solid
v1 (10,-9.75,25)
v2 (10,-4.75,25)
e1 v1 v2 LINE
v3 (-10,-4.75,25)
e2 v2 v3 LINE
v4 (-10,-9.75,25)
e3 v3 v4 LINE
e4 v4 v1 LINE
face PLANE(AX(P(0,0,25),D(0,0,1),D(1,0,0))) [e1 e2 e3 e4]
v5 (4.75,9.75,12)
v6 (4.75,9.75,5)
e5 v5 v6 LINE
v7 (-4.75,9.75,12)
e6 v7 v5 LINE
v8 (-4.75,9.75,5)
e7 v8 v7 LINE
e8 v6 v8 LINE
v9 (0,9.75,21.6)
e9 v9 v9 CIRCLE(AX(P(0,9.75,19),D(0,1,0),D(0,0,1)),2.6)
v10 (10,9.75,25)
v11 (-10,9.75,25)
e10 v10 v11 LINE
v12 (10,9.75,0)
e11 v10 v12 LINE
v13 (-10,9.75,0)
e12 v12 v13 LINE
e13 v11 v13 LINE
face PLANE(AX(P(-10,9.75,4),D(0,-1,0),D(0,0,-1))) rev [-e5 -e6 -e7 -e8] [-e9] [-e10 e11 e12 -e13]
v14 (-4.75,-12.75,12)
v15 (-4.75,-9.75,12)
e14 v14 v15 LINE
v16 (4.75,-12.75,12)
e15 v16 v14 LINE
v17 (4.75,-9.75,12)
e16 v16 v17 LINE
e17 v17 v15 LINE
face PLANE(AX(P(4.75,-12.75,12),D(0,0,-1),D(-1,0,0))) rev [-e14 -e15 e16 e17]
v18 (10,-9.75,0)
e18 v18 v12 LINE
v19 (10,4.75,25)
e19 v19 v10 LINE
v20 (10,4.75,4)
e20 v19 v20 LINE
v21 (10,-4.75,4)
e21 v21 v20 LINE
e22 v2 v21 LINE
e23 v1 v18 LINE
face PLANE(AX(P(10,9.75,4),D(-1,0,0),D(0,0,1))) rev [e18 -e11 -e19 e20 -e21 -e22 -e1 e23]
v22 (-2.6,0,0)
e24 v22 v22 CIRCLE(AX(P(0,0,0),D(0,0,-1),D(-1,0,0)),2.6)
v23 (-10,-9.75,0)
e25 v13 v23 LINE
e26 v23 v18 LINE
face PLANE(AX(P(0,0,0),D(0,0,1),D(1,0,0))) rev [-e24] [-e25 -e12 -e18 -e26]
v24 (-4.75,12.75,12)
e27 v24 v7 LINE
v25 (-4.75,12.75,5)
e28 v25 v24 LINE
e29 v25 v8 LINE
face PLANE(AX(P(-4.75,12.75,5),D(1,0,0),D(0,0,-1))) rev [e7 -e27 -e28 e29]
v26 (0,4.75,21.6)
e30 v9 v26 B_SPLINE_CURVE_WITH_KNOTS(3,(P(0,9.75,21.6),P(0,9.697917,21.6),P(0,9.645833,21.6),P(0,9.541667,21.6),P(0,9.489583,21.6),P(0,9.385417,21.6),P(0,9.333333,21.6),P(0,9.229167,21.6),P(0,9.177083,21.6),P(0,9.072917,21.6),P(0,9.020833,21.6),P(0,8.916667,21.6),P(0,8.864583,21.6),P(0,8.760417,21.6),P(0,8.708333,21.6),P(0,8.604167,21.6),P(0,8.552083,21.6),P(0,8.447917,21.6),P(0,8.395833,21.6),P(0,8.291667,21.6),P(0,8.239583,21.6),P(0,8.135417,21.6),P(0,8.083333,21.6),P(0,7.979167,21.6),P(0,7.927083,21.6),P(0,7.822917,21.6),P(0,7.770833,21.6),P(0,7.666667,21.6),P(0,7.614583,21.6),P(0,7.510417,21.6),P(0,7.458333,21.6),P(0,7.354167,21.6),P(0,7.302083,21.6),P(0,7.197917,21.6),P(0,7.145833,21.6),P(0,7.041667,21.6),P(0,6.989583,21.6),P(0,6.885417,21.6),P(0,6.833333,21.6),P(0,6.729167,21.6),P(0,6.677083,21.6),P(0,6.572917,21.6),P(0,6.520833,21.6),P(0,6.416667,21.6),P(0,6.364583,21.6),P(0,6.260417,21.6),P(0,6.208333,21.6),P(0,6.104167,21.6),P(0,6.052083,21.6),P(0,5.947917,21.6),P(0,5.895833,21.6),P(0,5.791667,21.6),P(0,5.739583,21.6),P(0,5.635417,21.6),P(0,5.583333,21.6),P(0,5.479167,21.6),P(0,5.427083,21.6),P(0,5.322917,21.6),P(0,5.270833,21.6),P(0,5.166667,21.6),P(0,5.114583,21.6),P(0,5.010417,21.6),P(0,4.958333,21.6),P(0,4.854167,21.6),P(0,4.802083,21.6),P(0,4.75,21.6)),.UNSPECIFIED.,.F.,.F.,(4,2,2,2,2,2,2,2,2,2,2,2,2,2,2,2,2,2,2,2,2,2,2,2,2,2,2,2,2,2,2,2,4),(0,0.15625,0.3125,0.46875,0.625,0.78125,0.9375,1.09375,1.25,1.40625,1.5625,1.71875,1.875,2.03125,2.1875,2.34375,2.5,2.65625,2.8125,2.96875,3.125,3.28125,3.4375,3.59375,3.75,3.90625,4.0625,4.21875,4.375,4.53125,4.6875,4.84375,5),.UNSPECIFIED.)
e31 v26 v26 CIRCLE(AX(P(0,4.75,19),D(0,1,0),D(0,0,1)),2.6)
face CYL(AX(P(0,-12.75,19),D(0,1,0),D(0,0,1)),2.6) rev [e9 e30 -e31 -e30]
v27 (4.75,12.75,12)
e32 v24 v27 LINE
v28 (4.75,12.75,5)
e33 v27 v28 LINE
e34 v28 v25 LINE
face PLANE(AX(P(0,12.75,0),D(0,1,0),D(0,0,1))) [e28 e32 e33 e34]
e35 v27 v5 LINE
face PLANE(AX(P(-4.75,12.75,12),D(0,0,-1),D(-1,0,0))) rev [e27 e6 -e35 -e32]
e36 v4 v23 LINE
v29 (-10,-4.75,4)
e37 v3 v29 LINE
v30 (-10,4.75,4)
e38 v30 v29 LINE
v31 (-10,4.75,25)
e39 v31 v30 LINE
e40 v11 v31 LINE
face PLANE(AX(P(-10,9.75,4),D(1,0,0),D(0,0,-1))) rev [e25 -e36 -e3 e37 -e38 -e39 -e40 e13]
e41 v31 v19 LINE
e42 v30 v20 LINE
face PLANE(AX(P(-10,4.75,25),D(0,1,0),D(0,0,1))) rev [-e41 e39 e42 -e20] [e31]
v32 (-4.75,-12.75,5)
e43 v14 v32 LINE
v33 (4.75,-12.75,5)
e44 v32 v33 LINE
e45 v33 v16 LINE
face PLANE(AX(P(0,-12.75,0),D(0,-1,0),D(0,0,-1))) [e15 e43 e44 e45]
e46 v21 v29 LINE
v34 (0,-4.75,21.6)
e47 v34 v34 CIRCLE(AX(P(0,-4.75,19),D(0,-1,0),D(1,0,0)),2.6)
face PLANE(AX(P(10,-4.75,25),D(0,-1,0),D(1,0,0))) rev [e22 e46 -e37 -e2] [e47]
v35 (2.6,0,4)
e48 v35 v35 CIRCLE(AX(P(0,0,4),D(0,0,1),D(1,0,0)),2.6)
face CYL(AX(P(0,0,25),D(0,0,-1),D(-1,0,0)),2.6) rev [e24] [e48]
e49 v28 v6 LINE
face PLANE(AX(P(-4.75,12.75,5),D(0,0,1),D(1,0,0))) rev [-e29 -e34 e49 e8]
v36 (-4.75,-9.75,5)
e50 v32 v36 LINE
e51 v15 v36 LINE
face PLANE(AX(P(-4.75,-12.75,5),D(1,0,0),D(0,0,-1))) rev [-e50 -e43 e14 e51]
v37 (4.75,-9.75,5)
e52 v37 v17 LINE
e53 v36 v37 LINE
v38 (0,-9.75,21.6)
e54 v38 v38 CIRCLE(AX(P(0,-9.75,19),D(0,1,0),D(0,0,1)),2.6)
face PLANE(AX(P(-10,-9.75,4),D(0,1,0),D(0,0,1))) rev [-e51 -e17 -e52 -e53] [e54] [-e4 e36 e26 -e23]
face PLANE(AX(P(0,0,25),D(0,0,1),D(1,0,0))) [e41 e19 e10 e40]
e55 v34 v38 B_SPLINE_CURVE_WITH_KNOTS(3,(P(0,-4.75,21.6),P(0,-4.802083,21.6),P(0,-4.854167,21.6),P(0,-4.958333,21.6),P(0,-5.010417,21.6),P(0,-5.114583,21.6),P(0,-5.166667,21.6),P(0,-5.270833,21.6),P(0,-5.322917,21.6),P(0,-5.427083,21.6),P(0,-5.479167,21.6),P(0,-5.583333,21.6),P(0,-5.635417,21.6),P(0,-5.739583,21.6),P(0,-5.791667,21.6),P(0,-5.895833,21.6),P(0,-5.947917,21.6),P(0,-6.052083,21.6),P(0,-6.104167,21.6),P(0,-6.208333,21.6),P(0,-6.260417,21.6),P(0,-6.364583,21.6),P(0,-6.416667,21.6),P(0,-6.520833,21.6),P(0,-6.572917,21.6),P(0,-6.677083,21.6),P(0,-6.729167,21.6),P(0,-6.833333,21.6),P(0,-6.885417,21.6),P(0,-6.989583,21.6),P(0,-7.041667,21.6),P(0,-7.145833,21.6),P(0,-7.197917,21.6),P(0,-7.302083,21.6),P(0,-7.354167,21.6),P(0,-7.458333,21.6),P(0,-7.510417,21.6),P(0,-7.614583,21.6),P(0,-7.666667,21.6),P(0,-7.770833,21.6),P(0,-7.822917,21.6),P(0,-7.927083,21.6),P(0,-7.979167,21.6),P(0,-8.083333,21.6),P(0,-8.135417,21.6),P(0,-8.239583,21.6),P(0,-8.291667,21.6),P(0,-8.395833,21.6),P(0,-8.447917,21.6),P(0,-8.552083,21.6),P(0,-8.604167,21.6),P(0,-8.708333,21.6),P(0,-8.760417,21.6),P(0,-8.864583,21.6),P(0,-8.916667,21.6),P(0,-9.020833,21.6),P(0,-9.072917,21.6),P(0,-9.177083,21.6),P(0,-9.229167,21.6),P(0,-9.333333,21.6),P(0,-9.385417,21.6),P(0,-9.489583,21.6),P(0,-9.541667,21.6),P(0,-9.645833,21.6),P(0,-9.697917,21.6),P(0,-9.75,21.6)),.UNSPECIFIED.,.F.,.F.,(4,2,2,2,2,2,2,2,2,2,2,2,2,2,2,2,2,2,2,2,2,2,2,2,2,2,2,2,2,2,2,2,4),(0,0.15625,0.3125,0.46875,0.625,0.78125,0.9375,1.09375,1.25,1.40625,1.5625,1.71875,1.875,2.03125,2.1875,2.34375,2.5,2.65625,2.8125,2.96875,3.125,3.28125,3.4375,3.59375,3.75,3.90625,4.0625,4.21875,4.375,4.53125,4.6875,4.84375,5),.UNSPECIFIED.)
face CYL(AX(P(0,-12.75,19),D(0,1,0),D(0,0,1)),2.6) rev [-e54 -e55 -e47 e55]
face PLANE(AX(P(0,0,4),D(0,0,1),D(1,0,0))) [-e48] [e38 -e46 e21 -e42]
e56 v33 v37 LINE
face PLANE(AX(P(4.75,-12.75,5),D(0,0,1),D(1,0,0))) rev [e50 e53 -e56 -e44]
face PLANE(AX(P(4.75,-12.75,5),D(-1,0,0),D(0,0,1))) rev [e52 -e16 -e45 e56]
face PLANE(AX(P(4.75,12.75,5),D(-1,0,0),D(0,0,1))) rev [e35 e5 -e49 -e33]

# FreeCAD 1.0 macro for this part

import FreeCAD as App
import Part
import Sketcher
Q = App.Units.Quantity


def add_polygon(sketch, points):
    """Adds a closed chain of lines whose ends are joined by coincident constraints."""
    first, n = sketch.GeometryCount, len(points)
    for a, b in zip(points, points[1:] + points[:1]):
        sketch.addGeometry(Part.LineSegment(App.Vector(*a, 0), App.Vector(*b, 0)), False)
    for i in range(n):
        sketch.addConstraint(Sketcher.Constraint("Coincident", first + i, 2, first + (i + 1) % n, 1))

doc = App.newDocument("Part")
params = doc.addObject("Spreadsheet::Sheet", "Params")
for row, (alias, value) in enumerate([
    ("sketch1_width", "20 mm"),
    ("sketch1_height", "19.5 mm"),
    ("pad1_length", "4 mm"),
    ("sketch2_width", "20 mm"),
    ("sketch2_height", "5 mm"),
    ("pad2_length", "21 mm"),
    ("sketch3_height", "7 mm"),
    ("sketch3_width", "9.5 mm"),
    ("pad3_length", "3 mm"),
    ("sketch4_height", "7 mm"),
    ("sketch4_width", "9.5 mm"),
    ("pad4_length", "3 mm"),
    ("sketch5_diameter", "5.2 mm"),
    ("sketch6_diameter", "5.2 mm"),
], start=1):
    params.set(f"A{row}", alias)
    params.set(f"B{row}", "=" + value)
    params.setAlias(f"B{row}", alias)

body = doc.addObject("PartDesign::Body", "Body")

sketch1 = doc.addObject("Sketcher::SketchObject", "Sketch")
body.addObject(sketch1)
sketch1.AttachmentSupport = (doc.XY_Plane, [""])
sketch1.MapMode = "FlatFace"
add_polygon(sketch1, [(-10, 9.75), (-10, -9.75), (10, -9.75), (10, 9.75)])
sketch1.addConstraint([
    Sketcher.Constraint("Vertical", 0),
    Sketcher.Constraint("Horizontal", 1),
    Sketcher.Constraint("Vertical", 2),
    Sketcher.Constraint("Horizontal", 3),
    Sketcher.Constraint("Symmetric", 0, 2, 2, 2, -1, 1),
    Sketcher.Constraint("DistanceX", 1, 1, 1, 2, Q("20 mm")),
    Sketcher.Constraint("DistanceY", 0, 2, 0, 1, Q("19.5 mm")),
])
sketch1.setExpression("Constraints[9]", "Params.sketch1_width")
sketch1.setExpression("Constraints[10]", "Params.sketch1_height")
pad1 = doc.addObject("PartDesign::Pad", "Pad")
body.addObject(pad1)
pad1.Profile = sketch1
pad1.setExpression("Length", "Params.pad1_length")

sketch2 = doc.addObject("Sketcher::SketchObject", "Sketch001")
body.addObject(sketch2)
sketch2.AttachmentSupport = (doc.XY_Plane, [""])
sketch2.MapMode = "FlatFace"
sketch2.AttachmentOffset = App.Placement(App.Vector(0, 0, 4), App.Rotation())
add_polygon(sketch2, [(-10, 9.75), (-10, 4.75), (10, 4.75), (10, 9.75)])
add_polygon(sketch2, [(-10, -4.75), (-10, -9.75), (10, -9.75), (10, -4.75)])
sketch2.addConstraint([
    Sketcher.Constraint("Vertical", 0),
    Sketcher.Constraint("Horizontal", 1),
    Sketcher.Constraint("Vertical", 2),
    Sketcher.Constraint("Horizontal", 3),
    Sketcher.Constraint("Vertical", 4),
    Sketcher.Constraint("Horizontal", 5),
    Sketcher.Constraint("Vertical", 6),
    Sketcher.Constraint("Horizontal", 7),
    Sketcher.Constraint("Symmetric", 2, 2, 4, 2, -1, 1),
    Sketcher.Constraint("Symmetric", 0, 2, 6, 2, -1, 1),
    Sketcher.Constraint("Vertical", 3, 2, 4, 2),
    Sketcher.Constraint("DistanceX", 1, 1, 1, 2, Q("20 mm")),
    Sketcher.Constraint("DistanceY", 0, 2, 0, 1, Q("5 mm")),
    Sketcher.Constraint("DistanceY", 4, 2, 0, 2, Q("14.5 mm")),
])
sketch2.setExpression("Constraints[19]", "Params.sketch2_width")
sketch2.setExpression("Constraints[20]", "Params.sketch2_height")
pad2 = doc.addObject("PartDesign::Pad", "Pad001")
body.addObject(pad2)
pad2.Profile = sketch2
pad2.setExpression("Length", "Params.pad2_length")

sketch3 = doc.addObject("Sketcher::SketchObject", "Sketch002")
body.addObject(sketch3)
sketch3.AttachmentSupport = (doc.XZ_Plane, [""])
sketch3.MapMode = "FlatFace"
sketch3.AttachmentOffset = App.Placement(App.Vector(0, 0, -9.75), App.Rotation())
add_polygon(sketch3, [(-4.75, 5), (-4.75, 12), (4.75, 12), (4.75, 5)])
sketch3.addConstraint([
    Sketcher.Constraint("Vertical", 0),
    Sketcher.Constraint("Horizontal", 1),
    Sketcher.Constraint("Vertical", 2),
    Sketcher.Constraint("Horizontal", 3),
    Sketcher.Constraint("DistanceY", 0, 1, 0, 2, Q("7 mm")),
    Sketcher.Constraint("DistanceX", 1, 1, 1, 2, Q("9.5 mm")),
    Sketcher.Constraint("DistanceY", -1, 1, 0, 2, Q("12 mm")),
    Sketcher.Constraint("DistanceX", 0, 2, -1, 1, Q("4.75 mm")),
])
sketch3.setExpression("Constraints[8]", "Params.sketch3_height")
sketch3.setExpression("Constraints[9]", "Params.sketch3_width")
pad3 = doc.addObject("PartDesign::Pad", "Pad002")
body.addObject(pad3)
pad3.Profile = sketch3
pad3.setExpression("Length", "Params.pad3_length")
pad3.Reversed = True

sketch4 = doc.addObject("Sketcher::SketchObject", "Sketch003")
body.addObject(sketch4)
sketch4.AttachmentSupport = (doc.XZ_Plane, [""])
sketch4.MapMode = "FlatFace"
sketch4.AttachmentOffset = App.Placement(App.Vector(0, 0, 9.75), App.Rotation())
add_polygon(sketch4, [(-4.75, 12), (-4.75, 5), (4.75, 5), (4.75, 12)])
sketch4.addConstraint([
    Sketcher.Constraint("Vertical", 0),
    Sketcher.Constraint("Horizontal", 1),
    Sketcher.Constraint("Vertical", 2),
    Sketcher.Constraint("Horizontal", 3),
    Sketcher.Constraint("DistanceY", 0, 2, 0, 1, Q("7 mm")),
    Sketcher.Constraint("DistanceX", 1, 1, 1, 2, Q("9.5 mm")),
    Sketcher.Constraint("DistanceY", -1, 1, 0, 2, Q("5 mm")),
    Sketcher.Constraint("DistanceX", 0, 2, -1, 1, Q("4.75 mm")),
])
sketch4.setExpression("Constraints[8]", "Params.sketch4_height")
sketch4.setExpression("Constraints[9]", "Params.sketch4_width")
pad4 = doc.addObject("PartDesign::Pad", "Pad003")
body.addObject(pad4)
pad4.Profile = sketch4
pad4.setExpression("Length", "Params.pad4_length")

sketch5 = doc.addObject("Sketcher::SketchObject", "Sketch004")
body.addObject(sketch5)
sketch5.AttachmentSupport = (doc.XZ_Plane, [""])
sketch5.MapMode = "FlatFace"
sketch5.AttachmentOffset = App.Placement(App.Vector(0, 0, -9.75), App.Rotation())
sketch5.addGeometry(Part.Circle(App.Vector(0, 19, 0), App.Vector(0, 0, 1), 2.6), False)
sketch5.addConstraint([
    Sketcher.Constraint("PointOnObject", 0, 3, -2),
    Sketcher.Constraint("Diameter", 0, Q("5.2 mm")),
    Sketcher.Constraint("DistanceY", -1, 1, 0, 3, Q("19 mm")),
])
sketch5.setExpression("Constraints[1]", "Params.sketch5_diameter")
pocket1 = doc.addObject("PartDesign::Pocket", "Pocket")
body.addObject(pocket1)
pocket1.Profile = sketch5
pocket1.Type = "ThroughAll"
pocket1.Reversed = True

sketch6 = doc.addObject("Sketcher::SketchObject", "Sketch005")
body.addObject(sketch6)
sketch6.AttachmentSupport = (doc.XY_Plane, [""])
sketch6.MapMode = "FlatFace"
sketch6.addGeometry(Part.Circle(App.Vector(0, 0, 0), App.Vector(0, 0, 1), 2.6), False)
sketch6.addConstraint([
    Sketcher.Constraint("Coincident", 0, 3, -1, 1),
    Sketcher.Constraint("Diameter", 0, Q("5.2 mm")),
])
sketch6.setExpression("Constraints[1]", "Params.sketch6_diameter")
pocket2 = doc.addObject("PartDesign::Pocket", "Pocket001")
body.addObject(pocket2)
pocket2.Profile = sketch6
pocket2.Type = "ThroughAll"
pocket2.Reversed = True

doc.recompute()
